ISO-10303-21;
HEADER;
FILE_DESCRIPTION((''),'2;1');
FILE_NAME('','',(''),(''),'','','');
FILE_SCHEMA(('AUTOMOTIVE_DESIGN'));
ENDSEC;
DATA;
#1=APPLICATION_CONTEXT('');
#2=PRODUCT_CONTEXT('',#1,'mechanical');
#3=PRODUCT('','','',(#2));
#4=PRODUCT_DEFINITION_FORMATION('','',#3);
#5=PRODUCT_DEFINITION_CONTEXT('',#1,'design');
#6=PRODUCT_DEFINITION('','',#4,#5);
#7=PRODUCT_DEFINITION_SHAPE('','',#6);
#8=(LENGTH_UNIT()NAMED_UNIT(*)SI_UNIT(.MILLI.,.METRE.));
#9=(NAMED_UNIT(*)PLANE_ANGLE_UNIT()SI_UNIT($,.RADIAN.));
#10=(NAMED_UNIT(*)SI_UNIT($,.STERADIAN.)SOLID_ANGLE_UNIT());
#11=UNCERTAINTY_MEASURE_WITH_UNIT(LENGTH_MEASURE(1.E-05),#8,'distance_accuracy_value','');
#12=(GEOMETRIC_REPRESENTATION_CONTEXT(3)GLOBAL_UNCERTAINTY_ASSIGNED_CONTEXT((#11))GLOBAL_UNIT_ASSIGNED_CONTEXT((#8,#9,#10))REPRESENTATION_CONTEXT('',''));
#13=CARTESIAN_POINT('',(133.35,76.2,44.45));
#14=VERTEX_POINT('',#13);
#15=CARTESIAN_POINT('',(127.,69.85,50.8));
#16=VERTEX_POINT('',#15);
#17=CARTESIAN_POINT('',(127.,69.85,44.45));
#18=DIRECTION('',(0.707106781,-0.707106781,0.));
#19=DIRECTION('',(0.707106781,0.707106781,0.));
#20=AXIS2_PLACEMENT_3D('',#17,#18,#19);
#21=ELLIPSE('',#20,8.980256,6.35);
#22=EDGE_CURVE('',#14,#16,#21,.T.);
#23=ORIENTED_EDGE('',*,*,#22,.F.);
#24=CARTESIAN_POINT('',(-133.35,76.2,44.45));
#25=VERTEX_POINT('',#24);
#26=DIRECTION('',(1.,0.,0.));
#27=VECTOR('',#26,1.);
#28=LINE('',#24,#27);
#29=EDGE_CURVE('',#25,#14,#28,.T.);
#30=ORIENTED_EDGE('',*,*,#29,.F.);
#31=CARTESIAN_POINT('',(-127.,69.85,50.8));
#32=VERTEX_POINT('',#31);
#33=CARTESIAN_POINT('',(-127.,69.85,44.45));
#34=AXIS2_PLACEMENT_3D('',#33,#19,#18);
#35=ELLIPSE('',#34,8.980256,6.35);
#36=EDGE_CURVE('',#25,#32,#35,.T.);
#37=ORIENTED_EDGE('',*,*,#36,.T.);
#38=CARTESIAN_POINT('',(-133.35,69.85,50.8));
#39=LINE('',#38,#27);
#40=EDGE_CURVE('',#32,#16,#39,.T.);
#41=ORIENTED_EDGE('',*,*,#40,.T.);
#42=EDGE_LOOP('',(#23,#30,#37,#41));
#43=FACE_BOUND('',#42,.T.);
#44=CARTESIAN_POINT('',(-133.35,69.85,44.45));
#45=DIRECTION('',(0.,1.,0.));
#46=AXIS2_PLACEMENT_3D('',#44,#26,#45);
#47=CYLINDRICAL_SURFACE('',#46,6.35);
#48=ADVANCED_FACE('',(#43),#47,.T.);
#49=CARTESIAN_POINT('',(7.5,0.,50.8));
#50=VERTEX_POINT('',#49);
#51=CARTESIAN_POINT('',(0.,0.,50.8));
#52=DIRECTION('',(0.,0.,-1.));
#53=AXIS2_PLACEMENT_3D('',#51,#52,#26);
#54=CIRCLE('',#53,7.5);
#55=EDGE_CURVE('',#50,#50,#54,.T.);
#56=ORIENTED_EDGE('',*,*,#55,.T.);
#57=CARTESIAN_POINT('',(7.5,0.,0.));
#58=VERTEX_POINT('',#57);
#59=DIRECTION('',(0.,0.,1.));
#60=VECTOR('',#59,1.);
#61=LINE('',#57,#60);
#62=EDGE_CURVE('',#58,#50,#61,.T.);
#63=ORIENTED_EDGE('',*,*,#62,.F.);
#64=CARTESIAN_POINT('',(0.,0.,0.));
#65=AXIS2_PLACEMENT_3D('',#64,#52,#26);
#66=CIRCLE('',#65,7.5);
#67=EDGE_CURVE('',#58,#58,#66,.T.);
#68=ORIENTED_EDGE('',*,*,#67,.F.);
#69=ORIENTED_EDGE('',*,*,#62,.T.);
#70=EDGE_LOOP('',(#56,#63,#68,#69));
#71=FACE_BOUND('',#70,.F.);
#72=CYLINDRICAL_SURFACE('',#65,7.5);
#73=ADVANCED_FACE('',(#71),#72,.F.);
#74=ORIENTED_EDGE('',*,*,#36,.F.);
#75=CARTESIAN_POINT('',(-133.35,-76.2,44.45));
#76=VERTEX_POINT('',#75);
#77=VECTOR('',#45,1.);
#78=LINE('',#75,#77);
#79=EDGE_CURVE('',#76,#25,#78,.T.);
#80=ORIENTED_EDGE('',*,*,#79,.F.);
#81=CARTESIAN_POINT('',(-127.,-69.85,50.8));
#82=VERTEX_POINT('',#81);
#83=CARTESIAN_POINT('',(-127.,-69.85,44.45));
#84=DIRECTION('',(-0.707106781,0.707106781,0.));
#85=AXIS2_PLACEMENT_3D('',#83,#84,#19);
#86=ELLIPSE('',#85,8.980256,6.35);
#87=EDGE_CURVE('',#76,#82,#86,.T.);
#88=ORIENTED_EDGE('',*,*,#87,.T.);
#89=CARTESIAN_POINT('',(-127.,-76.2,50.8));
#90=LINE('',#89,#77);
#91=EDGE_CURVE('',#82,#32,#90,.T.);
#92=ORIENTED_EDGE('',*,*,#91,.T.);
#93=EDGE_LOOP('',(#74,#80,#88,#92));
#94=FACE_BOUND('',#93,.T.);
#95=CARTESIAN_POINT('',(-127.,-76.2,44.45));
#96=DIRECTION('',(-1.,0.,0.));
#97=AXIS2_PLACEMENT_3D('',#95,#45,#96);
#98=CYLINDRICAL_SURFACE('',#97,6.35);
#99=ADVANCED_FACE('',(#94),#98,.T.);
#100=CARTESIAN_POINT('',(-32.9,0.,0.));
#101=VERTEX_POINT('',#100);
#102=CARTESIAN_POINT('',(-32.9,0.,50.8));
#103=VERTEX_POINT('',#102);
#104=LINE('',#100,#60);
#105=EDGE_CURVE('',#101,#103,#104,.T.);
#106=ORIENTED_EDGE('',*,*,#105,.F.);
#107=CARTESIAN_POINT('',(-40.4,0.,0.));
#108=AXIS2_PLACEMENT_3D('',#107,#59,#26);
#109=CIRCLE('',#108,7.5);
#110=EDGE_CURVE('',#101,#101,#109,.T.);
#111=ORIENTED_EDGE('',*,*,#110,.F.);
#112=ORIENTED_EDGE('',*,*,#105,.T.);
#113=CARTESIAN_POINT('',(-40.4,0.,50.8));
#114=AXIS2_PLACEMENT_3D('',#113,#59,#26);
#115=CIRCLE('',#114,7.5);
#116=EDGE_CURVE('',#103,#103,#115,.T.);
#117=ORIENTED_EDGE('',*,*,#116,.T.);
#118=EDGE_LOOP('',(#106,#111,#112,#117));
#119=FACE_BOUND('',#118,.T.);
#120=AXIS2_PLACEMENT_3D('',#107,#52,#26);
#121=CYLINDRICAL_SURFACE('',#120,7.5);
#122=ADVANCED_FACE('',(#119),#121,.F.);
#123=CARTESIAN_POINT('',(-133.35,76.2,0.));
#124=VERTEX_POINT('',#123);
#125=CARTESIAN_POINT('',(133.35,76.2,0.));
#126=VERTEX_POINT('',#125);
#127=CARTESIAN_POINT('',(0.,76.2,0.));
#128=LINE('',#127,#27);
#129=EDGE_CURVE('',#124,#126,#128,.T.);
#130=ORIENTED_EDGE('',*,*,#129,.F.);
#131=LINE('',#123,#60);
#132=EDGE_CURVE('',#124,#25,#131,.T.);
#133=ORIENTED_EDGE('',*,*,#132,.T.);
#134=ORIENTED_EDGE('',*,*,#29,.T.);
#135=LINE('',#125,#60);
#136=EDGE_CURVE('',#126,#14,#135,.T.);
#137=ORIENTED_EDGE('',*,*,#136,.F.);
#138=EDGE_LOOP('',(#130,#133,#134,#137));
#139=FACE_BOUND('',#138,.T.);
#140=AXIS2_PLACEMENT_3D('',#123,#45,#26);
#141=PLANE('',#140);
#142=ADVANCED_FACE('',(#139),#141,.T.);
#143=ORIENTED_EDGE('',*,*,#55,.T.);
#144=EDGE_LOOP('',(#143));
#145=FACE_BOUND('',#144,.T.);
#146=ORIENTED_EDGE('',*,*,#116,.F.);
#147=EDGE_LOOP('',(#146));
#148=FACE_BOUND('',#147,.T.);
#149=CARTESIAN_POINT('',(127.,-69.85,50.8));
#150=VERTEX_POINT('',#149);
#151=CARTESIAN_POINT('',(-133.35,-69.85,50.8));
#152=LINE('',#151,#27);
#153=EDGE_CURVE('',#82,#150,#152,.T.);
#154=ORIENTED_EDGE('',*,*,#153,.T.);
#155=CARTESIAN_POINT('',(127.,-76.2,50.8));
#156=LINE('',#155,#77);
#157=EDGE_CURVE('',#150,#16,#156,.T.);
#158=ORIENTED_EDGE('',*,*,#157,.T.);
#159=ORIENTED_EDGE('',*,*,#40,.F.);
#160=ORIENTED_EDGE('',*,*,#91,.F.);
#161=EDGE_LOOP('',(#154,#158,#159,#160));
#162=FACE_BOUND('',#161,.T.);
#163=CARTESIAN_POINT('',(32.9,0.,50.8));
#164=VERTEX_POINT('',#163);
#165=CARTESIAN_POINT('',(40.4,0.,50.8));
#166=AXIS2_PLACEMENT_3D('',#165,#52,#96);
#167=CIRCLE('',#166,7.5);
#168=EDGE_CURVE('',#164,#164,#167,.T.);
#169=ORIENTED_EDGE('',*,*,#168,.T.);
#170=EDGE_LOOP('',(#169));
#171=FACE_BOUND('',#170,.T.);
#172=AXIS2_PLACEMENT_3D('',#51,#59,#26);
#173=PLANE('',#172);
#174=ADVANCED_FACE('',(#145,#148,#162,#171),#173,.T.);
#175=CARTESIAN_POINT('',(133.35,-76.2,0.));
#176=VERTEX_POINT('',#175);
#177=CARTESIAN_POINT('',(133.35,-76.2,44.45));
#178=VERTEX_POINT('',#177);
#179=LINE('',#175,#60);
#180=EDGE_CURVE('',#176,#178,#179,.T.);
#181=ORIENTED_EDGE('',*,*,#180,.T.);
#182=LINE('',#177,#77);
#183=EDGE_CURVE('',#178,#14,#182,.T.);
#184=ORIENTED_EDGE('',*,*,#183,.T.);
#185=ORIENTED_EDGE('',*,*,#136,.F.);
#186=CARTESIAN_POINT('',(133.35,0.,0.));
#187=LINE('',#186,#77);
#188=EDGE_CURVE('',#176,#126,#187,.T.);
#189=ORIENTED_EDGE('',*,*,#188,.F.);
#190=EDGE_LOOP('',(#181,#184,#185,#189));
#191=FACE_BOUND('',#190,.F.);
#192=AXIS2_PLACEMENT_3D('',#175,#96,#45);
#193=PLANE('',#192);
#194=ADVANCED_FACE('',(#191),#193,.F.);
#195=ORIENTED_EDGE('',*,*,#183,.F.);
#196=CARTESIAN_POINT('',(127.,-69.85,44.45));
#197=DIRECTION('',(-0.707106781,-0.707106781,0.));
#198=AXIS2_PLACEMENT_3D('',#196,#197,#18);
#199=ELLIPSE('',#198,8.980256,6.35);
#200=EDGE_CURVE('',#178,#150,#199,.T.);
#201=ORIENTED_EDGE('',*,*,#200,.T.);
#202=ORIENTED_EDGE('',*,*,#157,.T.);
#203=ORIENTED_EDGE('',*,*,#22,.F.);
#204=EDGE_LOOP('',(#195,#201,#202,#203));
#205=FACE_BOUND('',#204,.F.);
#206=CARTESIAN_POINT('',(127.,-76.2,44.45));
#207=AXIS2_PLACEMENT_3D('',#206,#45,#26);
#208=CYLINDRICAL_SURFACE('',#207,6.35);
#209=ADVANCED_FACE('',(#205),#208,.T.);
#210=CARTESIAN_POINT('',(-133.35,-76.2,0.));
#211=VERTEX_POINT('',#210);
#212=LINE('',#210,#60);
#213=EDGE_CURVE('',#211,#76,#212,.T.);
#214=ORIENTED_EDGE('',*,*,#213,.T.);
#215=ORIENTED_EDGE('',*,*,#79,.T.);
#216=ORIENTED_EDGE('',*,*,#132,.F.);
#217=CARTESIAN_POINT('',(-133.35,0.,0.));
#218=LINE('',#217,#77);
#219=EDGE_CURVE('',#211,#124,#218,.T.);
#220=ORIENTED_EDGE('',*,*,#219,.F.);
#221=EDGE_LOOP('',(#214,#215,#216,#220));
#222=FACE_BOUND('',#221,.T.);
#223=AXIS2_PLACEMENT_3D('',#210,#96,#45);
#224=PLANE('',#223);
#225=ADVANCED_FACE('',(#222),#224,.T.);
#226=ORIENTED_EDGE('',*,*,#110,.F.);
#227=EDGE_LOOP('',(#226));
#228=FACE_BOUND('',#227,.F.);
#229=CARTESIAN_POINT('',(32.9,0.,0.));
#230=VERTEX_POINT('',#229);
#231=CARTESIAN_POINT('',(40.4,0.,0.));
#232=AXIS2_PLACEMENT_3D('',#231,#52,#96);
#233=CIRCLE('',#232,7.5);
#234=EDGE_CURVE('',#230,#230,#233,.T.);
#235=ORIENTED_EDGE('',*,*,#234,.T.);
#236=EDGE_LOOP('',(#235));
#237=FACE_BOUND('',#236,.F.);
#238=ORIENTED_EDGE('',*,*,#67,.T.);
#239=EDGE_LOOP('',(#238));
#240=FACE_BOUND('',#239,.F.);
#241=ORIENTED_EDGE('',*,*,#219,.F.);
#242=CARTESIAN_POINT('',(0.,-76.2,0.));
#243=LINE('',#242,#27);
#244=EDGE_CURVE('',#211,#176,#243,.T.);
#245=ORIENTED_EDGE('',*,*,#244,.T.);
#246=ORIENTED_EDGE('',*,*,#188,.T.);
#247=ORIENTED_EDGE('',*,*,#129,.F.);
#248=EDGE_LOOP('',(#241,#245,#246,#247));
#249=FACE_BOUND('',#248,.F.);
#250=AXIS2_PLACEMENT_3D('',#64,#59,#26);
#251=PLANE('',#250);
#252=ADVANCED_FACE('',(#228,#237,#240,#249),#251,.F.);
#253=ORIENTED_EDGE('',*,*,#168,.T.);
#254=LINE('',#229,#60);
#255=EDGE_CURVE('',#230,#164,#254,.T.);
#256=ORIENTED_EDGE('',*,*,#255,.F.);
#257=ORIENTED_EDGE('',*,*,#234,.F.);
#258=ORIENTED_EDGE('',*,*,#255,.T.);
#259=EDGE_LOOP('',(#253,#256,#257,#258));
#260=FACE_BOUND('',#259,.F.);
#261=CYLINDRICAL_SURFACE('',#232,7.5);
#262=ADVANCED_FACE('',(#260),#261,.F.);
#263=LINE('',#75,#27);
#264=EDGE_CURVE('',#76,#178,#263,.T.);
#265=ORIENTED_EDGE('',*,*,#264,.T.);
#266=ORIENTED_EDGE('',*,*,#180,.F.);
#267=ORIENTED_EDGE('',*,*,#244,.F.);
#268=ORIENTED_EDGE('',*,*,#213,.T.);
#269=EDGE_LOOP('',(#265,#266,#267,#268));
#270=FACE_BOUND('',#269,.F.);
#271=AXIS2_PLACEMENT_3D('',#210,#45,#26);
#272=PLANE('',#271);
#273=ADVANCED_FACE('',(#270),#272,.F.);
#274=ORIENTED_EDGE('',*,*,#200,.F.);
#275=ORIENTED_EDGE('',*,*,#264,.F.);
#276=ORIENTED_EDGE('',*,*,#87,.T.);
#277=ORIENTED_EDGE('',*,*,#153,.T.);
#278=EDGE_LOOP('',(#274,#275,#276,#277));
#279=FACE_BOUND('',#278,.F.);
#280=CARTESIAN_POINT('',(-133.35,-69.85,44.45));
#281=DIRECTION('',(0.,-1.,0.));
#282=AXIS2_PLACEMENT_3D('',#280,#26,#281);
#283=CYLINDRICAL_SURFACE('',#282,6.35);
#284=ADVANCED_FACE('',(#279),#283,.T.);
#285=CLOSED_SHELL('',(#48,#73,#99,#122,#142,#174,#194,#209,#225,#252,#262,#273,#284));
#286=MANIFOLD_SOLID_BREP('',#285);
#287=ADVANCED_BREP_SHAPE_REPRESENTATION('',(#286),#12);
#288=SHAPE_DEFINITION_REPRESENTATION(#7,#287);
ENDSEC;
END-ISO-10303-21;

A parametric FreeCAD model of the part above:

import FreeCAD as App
import Part
import Sketcher

V = App.Vector
Q = App.Units.Quantity


def edges_at(feature, points):
    """Names of the edges that pass closest to the given points."""
    edges = feature.Shape.Edges
    near = lambda p: min(range(len(edges)), key=lambda i: edges[i].distToShape(Part.Vertex(*p))[0])
    return sorted({f"Edge{near(p) + 1}" for p in points})

doc = App.newDocument("Part")
body = doc.addObject("PartDesign::Body", "Body")

sketch1 = body.newObject("Sketcher::SketchObject", "Sketch")
sketch1.AttachmentSupport = (doc.getObject("XY_Plane"), [""])
sketch1.MapMode = "FlatFace"
sketch1.addGeometry([
    Part.LineSegment(V(-133, 76, 0), V(-133, -76, 0)),
    Part.LineSegment(V(-133, -76, 0), V(133, -76, 0)),
    Part.LineSegment(V(133, -76, 0), V(133, 76, 0)),
    Part.LineSegment(V(133, 76, 0), V(-133, 76, 0)),
    Part.Circle(V(-40, 0, 0), V(0, 0, 1), 8),
    Part.Circle(V(0, 0, 0), V(0, 0, 1), 8),
    Part.Circle(V(40, 0, 0), V(0, 0, 1), 8),
], False)
sketch1.addConstraint([
    Sketcher.Constraint("Coincident", 0, 2, 1, 1),
    Sketcher.Constraint("Coincident", 1, 2, 2, 1),
    Sketcher.Constraint("Coincident", 2, 2, 3, 1),
    Sketcher.Constraint("Coincident", 3, 2, 0, 1),
    Sketcher.Constraint("Vertical", 0),
    Sketcher.Constraint("Horizontal", 1),
    Sketcher.Constraint("Vertical", 2),
    Sketcher.Constraint("Horizontal", 3),
    Sketcher.Constraint("Coincident", 5, 3, -1, 1),
    Sketcher.Constraint("Equal", 4, 5),
    Sketcher.Constraint("Equal", 5, 6),
    Sketcher.Constraint("Symmetric", 4, 3, 6, 3, -1, 1),
    Sketcher.Constraint("Symmetric", 0, 2, 2, 2, -1, 1),
    Sketcher.Constraint("PointOnObject", 4, 3, -1),
    Sketcher.Constraint("DistanceY", 0, 2, 0, 1, Q("6 in")),
    Sketcher.Constraint("DistanceX", 1, 1, 1, 2, Q("10.5 in")),
    Sketcher.Constraint("Diameter", 4, Q("15 mm")),
    Sketcher.Constraint("DistanceX", 4, 3, -1, 1, Q("40.4 mm")),
])
pad1 = body.newObject("PartDesign::Pad", "Pad")
pad1.Profile = sketch1
pad1.Length = Q("2 in")
doc.recompute()

fillet = body.newObject("PartDesign::Fillet", "Fillet")
fillet.Base = (pad1, edges_at(pad1, [
    (0, 76.2, 50.8),
    (-133.35, 0, 50.8),
    (0, -76.2, 50.8),
    (133.35, 0, 50.8),
]))
fillet.Radius = Q("0.25 in")

doc.recompute()
